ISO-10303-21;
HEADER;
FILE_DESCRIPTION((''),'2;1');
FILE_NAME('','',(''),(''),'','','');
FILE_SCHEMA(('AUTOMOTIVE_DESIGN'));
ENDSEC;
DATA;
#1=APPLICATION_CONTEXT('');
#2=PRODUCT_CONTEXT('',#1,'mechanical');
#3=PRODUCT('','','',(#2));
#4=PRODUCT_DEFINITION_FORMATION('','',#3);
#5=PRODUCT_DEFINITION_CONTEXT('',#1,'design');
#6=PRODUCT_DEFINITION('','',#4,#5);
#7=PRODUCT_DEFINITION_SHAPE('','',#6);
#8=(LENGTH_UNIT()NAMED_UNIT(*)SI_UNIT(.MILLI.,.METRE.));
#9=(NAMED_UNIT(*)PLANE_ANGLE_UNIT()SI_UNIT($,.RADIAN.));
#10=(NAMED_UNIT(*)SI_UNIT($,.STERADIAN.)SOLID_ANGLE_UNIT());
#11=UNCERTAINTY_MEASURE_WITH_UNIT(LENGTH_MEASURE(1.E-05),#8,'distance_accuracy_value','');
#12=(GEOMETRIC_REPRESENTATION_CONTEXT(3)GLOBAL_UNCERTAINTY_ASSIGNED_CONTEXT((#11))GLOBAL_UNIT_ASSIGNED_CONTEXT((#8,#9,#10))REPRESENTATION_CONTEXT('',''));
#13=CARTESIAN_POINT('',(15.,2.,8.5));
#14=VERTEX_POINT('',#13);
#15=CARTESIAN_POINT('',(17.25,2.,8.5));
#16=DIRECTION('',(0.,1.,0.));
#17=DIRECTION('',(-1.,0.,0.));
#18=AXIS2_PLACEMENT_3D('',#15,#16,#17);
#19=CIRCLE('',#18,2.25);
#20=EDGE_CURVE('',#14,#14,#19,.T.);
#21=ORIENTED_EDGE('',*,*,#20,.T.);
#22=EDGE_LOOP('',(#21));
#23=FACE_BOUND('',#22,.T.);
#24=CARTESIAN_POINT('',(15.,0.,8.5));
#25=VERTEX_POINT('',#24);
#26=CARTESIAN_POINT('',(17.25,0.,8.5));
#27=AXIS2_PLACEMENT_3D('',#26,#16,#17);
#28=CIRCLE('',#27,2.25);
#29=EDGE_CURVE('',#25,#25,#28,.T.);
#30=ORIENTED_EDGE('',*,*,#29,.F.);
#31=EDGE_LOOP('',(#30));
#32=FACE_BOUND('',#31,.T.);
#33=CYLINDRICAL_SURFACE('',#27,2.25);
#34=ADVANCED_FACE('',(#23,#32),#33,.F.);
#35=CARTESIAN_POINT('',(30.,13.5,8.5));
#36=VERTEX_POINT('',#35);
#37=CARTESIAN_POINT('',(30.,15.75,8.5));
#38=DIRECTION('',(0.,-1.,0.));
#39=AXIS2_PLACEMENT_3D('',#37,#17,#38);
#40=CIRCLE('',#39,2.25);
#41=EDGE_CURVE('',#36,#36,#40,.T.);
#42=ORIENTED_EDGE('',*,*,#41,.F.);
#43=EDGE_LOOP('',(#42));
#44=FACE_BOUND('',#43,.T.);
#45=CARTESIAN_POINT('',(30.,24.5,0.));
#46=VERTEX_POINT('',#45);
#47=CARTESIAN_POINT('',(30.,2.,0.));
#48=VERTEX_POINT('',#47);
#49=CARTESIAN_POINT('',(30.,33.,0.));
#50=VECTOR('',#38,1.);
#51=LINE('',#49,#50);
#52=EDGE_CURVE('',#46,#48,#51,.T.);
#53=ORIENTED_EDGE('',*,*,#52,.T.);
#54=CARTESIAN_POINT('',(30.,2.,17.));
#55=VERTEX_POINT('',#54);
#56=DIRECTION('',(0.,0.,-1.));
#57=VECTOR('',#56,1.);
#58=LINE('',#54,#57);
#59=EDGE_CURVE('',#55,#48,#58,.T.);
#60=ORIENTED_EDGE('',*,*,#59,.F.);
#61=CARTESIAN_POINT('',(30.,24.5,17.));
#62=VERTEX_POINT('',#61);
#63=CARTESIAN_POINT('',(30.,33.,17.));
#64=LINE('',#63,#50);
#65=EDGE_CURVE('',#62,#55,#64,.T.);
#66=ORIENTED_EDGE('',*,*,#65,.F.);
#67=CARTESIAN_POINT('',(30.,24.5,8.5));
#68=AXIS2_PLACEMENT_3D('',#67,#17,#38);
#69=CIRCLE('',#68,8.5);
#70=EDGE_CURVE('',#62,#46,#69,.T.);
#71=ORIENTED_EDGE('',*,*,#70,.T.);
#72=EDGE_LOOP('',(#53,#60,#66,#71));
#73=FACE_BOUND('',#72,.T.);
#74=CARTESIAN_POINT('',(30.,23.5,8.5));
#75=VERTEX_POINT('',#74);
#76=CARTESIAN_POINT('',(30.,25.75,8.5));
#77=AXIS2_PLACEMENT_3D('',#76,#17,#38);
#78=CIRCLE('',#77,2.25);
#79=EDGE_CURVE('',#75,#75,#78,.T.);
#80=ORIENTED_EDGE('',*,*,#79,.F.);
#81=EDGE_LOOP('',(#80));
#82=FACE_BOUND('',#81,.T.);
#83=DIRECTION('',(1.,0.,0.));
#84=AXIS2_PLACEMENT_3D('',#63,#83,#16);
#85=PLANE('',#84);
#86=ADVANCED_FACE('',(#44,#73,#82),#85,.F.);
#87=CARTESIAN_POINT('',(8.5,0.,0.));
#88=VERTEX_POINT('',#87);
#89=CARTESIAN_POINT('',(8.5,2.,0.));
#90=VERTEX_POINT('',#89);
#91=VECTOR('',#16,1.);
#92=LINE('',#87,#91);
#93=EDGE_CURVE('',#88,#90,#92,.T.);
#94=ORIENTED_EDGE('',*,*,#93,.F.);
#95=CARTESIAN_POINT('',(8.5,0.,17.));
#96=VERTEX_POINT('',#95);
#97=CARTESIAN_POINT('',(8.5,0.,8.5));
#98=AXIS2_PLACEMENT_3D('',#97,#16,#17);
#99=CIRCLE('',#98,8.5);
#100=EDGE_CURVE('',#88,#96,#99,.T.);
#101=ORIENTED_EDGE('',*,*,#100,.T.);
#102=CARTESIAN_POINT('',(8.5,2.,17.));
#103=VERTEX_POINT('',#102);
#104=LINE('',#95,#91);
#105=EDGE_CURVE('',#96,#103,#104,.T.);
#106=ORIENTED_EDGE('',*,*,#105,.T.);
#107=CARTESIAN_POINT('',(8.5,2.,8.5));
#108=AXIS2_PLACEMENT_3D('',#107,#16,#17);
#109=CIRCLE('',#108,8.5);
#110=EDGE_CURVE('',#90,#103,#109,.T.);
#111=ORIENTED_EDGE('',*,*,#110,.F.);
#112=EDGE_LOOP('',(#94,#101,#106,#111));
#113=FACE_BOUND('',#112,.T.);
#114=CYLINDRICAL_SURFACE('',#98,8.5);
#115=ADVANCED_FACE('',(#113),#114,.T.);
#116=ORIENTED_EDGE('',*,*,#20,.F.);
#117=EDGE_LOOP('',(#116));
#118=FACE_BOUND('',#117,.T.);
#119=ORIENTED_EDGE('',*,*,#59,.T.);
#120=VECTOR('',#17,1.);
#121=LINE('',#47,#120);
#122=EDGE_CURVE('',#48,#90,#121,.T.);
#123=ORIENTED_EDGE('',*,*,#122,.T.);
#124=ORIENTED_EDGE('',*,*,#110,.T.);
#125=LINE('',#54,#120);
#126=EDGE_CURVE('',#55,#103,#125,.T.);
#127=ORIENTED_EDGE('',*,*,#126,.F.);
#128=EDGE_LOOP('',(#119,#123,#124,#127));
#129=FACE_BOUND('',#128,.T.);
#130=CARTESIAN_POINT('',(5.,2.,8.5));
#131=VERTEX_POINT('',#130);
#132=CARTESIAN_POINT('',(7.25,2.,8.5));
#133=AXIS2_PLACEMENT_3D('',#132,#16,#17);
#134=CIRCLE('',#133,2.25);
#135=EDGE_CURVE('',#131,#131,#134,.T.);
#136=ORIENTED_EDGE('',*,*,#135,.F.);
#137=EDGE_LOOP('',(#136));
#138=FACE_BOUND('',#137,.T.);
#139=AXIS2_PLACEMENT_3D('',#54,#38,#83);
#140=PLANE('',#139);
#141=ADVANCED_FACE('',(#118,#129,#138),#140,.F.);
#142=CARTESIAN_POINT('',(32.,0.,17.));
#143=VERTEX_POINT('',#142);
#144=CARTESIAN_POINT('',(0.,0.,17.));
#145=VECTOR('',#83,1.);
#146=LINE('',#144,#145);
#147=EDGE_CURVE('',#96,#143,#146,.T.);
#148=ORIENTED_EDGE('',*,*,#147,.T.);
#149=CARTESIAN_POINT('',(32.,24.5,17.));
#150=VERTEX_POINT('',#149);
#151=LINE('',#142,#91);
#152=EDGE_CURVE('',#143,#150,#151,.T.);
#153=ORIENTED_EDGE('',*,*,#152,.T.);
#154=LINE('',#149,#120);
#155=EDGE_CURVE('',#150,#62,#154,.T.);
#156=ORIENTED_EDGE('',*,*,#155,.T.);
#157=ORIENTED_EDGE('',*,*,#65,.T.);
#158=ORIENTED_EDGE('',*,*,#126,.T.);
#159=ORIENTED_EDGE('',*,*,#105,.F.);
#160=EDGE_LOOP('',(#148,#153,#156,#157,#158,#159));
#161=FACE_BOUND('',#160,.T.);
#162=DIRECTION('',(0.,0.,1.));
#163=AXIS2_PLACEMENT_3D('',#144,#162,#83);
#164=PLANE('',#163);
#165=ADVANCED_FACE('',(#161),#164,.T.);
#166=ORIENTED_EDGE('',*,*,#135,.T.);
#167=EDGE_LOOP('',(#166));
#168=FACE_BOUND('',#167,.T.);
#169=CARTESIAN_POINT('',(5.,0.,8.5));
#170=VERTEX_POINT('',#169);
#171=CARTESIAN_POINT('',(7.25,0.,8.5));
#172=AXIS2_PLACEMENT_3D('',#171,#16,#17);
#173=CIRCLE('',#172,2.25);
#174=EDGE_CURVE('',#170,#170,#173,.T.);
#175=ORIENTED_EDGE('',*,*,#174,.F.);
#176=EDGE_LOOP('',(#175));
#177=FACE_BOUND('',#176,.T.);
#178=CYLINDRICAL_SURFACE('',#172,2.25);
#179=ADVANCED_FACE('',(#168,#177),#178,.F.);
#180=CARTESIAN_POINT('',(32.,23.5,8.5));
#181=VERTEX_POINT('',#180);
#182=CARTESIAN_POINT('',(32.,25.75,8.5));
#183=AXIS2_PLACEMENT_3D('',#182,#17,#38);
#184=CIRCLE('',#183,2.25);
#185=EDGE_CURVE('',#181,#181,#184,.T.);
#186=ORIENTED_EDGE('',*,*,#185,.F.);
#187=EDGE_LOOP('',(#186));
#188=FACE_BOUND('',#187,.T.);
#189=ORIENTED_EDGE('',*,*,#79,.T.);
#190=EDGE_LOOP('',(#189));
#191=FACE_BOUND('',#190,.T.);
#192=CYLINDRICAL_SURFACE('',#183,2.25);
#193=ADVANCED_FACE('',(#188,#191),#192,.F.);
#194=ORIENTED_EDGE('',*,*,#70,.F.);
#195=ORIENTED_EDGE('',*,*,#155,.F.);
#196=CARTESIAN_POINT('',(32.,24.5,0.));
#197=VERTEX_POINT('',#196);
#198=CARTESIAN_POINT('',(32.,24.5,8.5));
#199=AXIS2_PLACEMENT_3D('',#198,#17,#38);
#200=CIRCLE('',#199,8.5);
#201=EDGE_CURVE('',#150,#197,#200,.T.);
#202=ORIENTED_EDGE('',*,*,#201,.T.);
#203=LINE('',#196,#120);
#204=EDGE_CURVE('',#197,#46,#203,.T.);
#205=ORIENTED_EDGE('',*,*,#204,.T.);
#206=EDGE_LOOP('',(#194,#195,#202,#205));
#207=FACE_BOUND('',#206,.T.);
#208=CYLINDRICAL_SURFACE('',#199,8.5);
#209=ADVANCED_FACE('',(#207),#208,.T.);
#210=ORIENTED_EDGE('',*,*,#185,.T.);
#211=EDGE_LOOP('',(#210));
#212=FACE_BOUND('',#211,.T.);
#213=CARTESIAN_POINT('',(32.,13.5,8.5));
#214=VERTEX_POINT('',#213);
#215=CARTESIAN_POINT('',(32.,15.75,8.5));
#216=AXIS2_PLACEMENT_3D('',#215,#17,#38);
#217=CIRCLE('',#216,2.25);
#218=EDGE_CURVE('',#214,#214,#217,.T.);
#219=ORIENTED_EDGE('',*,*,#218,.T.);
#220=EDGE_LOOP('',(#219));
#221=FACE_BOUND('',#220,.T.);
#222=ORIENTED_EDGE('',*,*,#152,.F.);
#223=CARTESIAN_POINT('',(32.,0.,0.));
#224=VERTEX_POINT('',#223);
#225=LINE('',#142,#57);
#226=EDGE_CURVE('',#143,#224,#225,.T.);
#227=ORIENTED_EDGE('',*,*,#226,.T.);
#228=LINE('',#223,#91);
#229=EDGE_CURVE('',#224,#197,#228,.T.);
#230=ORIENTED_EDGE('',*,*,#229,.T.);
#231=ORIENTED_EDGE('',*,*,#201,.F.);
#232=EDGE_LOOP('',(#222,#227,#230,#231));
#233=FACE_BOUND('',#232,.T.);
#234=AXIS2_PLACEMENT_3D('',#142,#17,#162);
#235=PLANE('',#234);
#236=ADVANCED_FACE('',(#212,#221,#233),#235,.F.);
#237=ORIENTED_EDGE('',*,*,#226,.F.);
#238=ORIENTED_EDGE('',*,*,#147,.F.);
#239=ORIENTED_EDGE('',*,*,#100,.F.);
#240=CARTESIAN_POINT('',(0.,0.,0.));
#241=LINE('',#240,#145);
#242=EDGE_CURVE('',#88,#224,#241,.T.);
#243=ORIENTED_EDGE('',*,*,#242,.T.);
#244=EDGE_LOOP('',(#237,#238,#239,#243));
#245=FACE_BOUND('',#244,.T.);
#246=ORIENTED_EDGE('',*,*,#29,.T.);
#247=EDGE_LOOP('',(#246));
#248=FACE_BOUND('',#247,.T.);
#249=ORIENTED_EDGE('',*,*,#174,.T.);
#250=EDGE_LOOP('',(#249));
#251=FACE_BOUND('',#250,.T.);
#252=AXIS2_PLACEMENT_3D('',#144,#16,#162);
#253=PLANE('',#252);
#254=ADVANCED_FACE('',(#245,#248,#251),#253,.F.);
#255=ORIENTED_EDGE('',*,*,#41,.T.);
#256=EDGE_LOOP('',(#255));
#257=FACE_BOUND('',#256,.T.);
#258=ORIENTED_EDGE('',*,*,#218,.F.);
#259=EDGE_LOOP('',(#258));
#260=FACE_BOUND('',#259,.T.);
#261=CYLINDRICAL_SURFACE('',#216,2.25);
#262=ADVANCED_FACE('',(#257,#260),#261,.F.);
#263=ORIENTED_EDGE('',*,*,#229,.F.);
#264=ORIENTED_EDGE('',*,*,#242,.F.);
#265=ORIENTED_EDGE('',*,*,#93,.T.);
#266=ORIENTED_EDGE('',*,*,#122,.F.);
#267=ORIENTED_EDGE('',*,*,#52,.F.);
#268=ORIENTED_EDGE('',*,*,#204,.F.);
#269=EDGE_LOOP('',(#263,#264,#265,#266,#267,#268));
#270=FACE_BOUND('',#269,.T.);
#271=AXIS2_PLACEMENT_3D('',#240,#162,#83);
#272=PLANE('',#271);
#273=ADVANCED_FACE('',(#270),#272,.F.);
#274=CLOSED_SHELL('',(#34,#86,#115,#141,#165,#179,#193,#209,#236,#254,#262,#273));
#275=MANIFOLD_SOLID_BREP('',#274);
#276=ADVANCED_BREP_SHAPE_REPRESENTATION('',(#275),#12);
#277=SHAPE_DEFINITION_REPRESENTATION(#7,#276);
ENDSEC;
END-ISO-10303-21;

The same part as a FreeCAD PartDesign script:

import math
import FreeCAD as App
import Part
import Sketcher

V = App.Vector
Q = App.Units.Quantity


def add_polygon(sketch, points):
    """Adds a closed chain of lines whose ends are joined by coincident constraints."""
    first, n = sketch.GeometryCount, len(points)
    for a, b in zip(points, points[1:] + points[:1]):
        sketch.addGeometry(Part.LineSegment(App.Vector(*a, 0), App.Vector(*b, 0)), False)
    for i in range(n):
        sketch.addConstraint(Sketcher.Constraint("Coincident", first + i, 2, first + (i + 1) % n, 1))

doc = App.newDocument("Part")
body = doc.addObject("PartDesign::Body", "Body")

# Sketch on XY plane
sketch1 = body.newObject("Sketcher::SketchObject", "Sketch")
sketch1.AttachmentSupport = (doc.getObject("XY_Plane"), [""])
sketch1.MapMode = "FlatFace"
add_polygon(sketch1, [(0, 0), (32, 0), (32, 33), (30, 33), (30, 2), (0, 2)])  # lines 0-5
sketch1.addConstraint([
    Sketcher.Constraint("Horizontal", 0),
    Sketcher.Constraint("Vertical", 1),
    Sketcher.Constraint("Horizontal", 2),
    Sketcher.Constraint("Vertical", 3),
    Sketcher.Constraint("Horizontal", 4),
    Sketcher.Constraint("Vertical", 5),
    Sketcher.Constraint("Coincident", 5, 2, -1, 1),
    Sketcher.Constraint("Equal", 2, 5),
    Sketcher.Constraint("DistanceX", 0, 1, 0, 2, Q("32 mm")),
    Sketcher.Constraint("DistanceX", 2, 2, 2, 1, Q("2 mm")),
    Sketcher.Constraint("DistanceY", 1, 1, 1, 2, Q("33 mm")),
])
pad1 = body.newObject("PartDesign::Pad", "Pad")
pad1.Profile = sketch1
pad1.Length = 17

# Sketch on YZ plane
sketch2 = body.newObject("Sketcher::SketchObject", "Sketch001")
sketch2.AttachmentSupport = (doc.getObject("YZ_Plane"), [""])
sketch2.MapMode = "FlatFace"
sketch2.AttachmentOffset = App.Placement(V(0, 0, 30), App.Rotation())
sketch2.addGeometry([
    Part.ArcOfCircle(Part.Circle(V(24.5, 8.5, 0), V(0, 0, 1), 8.5), math.radians(0), math.radians(90)),  # 0
    Part.LineSegment(V(24.5, 17, 0), V(33, 17, 0)),  # 1
    Part.LineSegment(V(33, 17, 0), V(33, 8.5, 0)),  # 2
    Part.LineSegment(V(33, 0, 0), V(24.5, 0, 0)),  # 3
    Part.ArcOfCircle(Part.Circle(V(24.5, 8.5, 0), V(0, 0, 1), 8.5), math.radians(-90), math.radians(0)),  # 4
    Part.LineSegment(V(33, 8.5, 0), V(33, 0, 0)),  # 5
], False)
sketch2.addConstraint([
    Sketcher.Constraint("Tangent", 0, 2, 1, 1),
    Sketcher.Constraint("Coincident", 1, 2, 2, 1),
    Sketcher.Constraint("Tangent", 2, 2, 0, 1),
    Sketcher.Constraint("Tangent", 3, 2, 4, 1),
    Sketcher.Constraint("Tangent", 4, 2, 5, 1),
    Sketcher.Constraint("Coincident", 5, 2, 3, 1),
    Sketcher.Constraint("Horizontal", 1),
    Sketcher.Constraint("Vertical", 2),
    Sketcher.Constraint("Horizontal", 3),
    Sketcher.Constraint("Vertical", 5),
    Sketcher.Constraint("Coincident", 4, 3, 0, 3),
    Sketcher.Constraint("Equal", 0, 4),
    Sketcher.Constraint("PointOnObject", 3, 2, -1),
    Sketcher.Constraint("Radius", 0, Q("8.5 mm")),
    Sketcher.Constraint("DistanceX", -1, 1, 1, 2, Q("33 mm")),
])
pocket1 = body.newObject("PartDesign::Pocket", "Pocket")
pocket1.Profile = sketch2
pocket1.Type = "ThroughAll"
pocket1.Reversed = True

# Sketch on XZ plane
sketch3 = body.newObject("Sketcher::SketchObject", "Sketch002")
sketch3.AttachmentSupport = (doc.getObject("XZ_Plane"), [""])
sketch3.MapMode = "FlatFace"
sketch3.AttachmentOffset = App.Placement(V(0, 0, -2), App.Rotation())
sketch3.addGeometry([
    Part.ArcOfCircle(Part.Circle(V(8.5, 8.5, 0), V(0, 0, 1), 8.5), math.radians(90), math.radians(180)),  # 0
    Part.LineSegment(V(0, 8.5, 0), V(0, 17, 0)),  # 1
    Part.LineSegment(V(0, 17, 0), V(8.5, 17, 0)),  # 2
    Part.ArcOfCircle(Part.Circle(V(8.5, 8.5, 0), V(0, 0, 1), 8.5), math.radians(180), math.radians(270)),  # 3
    Part.LineSegment(V(8.5, 0, 0), V(0, 0, 0)),  # 4
    Part.LineSegment(V(0, 0, 0), V(0, 8.5, 0)),  # 5
], False)
sketch3.addConstraint([
    Sketcher.Constraint("Tangent", 0, 2, 1, 1),
    Sketcher.Constraint("Coincident", 1, 2, 2, 1),
    Sketcher.Constraint("Tangent", 2, 2, 0, 1),
    Sketcher.Constraint("Tangent", 3, 2, 4, 1),
    Sketcher.Constraint("Coincident", 4, 2, 5, 1),
    Sketcher.Constraint("Tangent", 5, 2, 3, 1),
    Sketcher.Constraint("Vertical", 1),
    Sketcher.Constraint("Horizontal", 2),
    Sketcher.Constraint("Horizontal", 4),
    Sketcher.Constraint("Vertical", 5),
    Sketcher.Constraint("Coincident", 4, 2, -1, 1),
    Sketcher.Constraint("Coincident", 3, 3, 0, 3),
    Sketcher.Constraint("Equal", 0, 3),
    Sketcher.Constraint("Radius", 0, Q("8.5 mm")),
])
pocket2 = body.newObject("PartDesign::Pocket", "Pocket001")
pocket2.Profile = sketch3
pocket2.Type = "ThroughAll"
pocket2.Reversed = True

# Sketch on YZ plane
sketch4 = body.newObject("Sketcher::SketchObject", "Sketch003")
sketch4.AttachmentSupport = (doc.getObject("YZ_Plane"), [""])
sketch4.MapMode = "FlatFace"
sketch4.AttachmentOffset = App.Placement(V(0, 0, 30), App.Rotation())
sketch4.addGeometry([
    Part.Circle(V(25.75, 8.5, 0), V(0, 0, 1), 2.25),
    Part.Circle(V(15.75, 8.5, 0), V(0, 0, 1), 2.25),
], False)
sketch4.addConstraint([
    Sketcher.Constraint("Equal", 0, 1),
    Sketcher.Constraint("Horizontal", 0, 3, 1, 3),
    Sketcher.Constraint("Diameter", 0, Q("4.5 mm")),
    Sketcher.Constraint("DistanceX", 1, 3, 0, 3, Q("10 mm")),
    Sketcher.Constraint("DistanceY", -1, 1, 0, 3, Q("8.5 mm")),
    Sketcher.Constraint("DistanceX", -1, 1, 0, 3, Q("25.75 mm")),
])
pocket3 = body.newObject("PartDesign::Pocket", "Pocket002")
pocket3.Profile = sketch4
pocket3.Type = "ThroughAll"
pocket3.Reversed = True

# Sketch on XZ plane
sketch5 = body.newObject("Sketcher::SketchObject", "Sketch004")
sketch5.AttachmentSupport = (doc.getObject("XZ_Plane"), [""])
sketch5.MapMode = "FlatFace"
sketch5.AttachmentOffset = App.Placement(V(0, 0, -2), App.Rotation())
sketch5.addGeometry([
    Part.Circle(V(7.25, 8.5, 0), V(0, 0, 1), 2.25),
    Part.Circle(V(17.25, 8.5, 0), V(0, 0, 1), 2.25),
], False)
sketch5.addConstraint([
    Sketcher.Constraint("Equal", 0, 1),
    Sketcher.Constraint("Horizontal", 0, 3, 1, 3),
    Sketcher.Constraint("Diameter", 0, Q("4.5 mm")),
    Sketcher.Constraint("DistanceX", 0, 3, 1, 3, Q("10 mm")),
    Sketcher.Constraint("DistanceY", -1, 1, 0, 3, Q("8.5 mm")),
    Sketcher.Constraint("DistanceX", -1, 1, 0, 3, Q("7.25 mm")),
])
pocket4 = body.newObject("PartDesign::Pocket", "Pocket003")
pocket4.Profile = sketch5
pocket4.Type = "ThroughAll"
pocket4.Reversed = True

doc.recompute()
